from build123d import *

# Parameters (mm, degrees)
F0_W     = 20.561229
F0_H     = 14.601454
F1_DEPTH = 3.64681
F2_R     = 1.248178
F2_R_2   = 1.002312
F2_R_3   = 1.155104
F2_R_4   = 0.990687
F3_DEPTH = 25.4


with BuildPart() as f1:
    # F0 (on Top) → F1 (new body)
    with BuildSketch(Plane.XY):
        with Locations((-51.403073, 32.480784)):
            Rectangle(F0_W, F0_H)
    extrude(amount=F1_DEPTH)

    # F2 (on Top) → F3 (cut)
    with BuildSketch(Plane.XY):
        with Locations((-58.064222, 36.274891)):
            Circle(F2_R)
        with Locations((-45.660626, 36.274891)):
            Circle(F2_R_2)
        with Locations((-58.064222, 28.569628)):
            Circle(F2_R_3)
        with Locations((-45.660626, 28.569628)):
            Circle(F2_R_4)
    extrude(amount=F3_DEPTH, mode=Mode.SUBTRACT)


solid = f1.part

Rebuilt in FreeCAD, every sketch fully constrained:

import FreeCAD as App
import Part
import Sketcher
from FreeCAD import Vector
Q = App.Units.Quantity


def add_polygon(sketch, points):
    """Adds a closed chain of lines whose ends are joined by coincident constraints."""
    first, n = sketch.GeometryCount, len(points)
    for a, b in zip(points, points[1:] + points[:1]):
        sketch.addGeometry(Part.LineSegment(App.Vector(*a, 0), App.Vector(*b, 0)), False)
    for i in range(n):
        sketch.addConstraint(Sketcher.Constraint("Coincident", first + i, 2, first + (i + 1) % n, 1))

doc = App.newDocument("Part")
body = doc.addObject("PartDesign::Body", "Body")

# Sketch on XY plane
sketch1 = body.newObject("Sketcher::SketchObject", "Sketch")
sketch1.AttachmentSupport = (doc.getObject("XY_Plane"), [""])
sketch1.MapMode = "FlatFace"
add_polygon(sketch1, [(-62, 40), (-62, 25), (-41, 25), (-41, 40)])  # lines 0-3
sketch1.addConstraint([
    Sketcher.Constraint("Vertical", 0),
    Sketcher.Constraint("Horizontal", 1),
    Sketcher.Constraint("Vertical", 2),
    Sketcher.Constraint("Horizontal", 3),
    Sketcher.Constraint("DistanceX", 1, 1, 1, 2, Q("20.561229 mm")),
    Sketcher.Constraint("DistanceY", 0, 2, 0, 1, Q("14.601454 mm")),
    Sketcher.Constraint("DistanceX", 1, 2, -1, 1, Q("41.122459 mm")),
    Sketcher.Constraint("DistanceY", -1, 1, 2, 2, Q("39.781511 mm")),
])
pad1 = body.newObject("PartDesign::Pad", "Pad")
pad1.Profile = sketch1
pad1.Length = 3.64681

# Sketch on XY plane
sketch2 = body.newObject("Sketcher::SketchObject", "Sketch001")
sketch2.AttachmentSupport = (doc.getObject("XY_Plane"), [""])
sketch2.MapMode = "FlatFace"
sketch2.addGeometry([
    Part.Circle(Vector(-58.1, 36.3, 0), Vector(0, 0, 1), 1.2),
    Part.Circle(Vector(-45.7, 36.3, 0), Vector(0, 0, 1), 1),
    Part.Circle(Vector(-58.1, 28.6, 0), Vector(0, 0, 1), 1.2),
    Part.Circle(Vector(-45.7, 28.6, 0), Vector(0, 0, 1), 1),
], False)
sketch2.addConstraint([
    Sketcher.Constraint("Horizontal", 0, 3, 1, 3),
    Sketcher.Constraint("Horizontal", 2, 3, 3, 3),
    Sketcher.Constraint("Vertical", 0, 3, 2, 3),
    Sketcher.Constraint("Vertical", 1, 3, 3, 3),
    Sketcher.Constraint("Diameter", 0, Q("2.496356 mm")),
    Sketcher.Constraint("Diameter", 1, Q("2.004624 mm")),
    Sketcher.Constraint("Diameter", 2, Q("2.310208 mm")),
    Sketcher.Constraint("Diameter", 3, Q("1.981374 mm")),
    Sketcher.Constraint("DistanceY", -1, 1, 0, 3, Q("36.274891 mm")),
    Sketcher.Constraint("DistanceY", -1, 1, 2, 3, Q("28.569628 mm")),
    Sketcher.Constraint("DistanceX", 0, 3, -1, 1, Q("58.064222 mm")),
    Sketcher.Constraint("DistanceX", 1, 3, -1, 1, Q("45.660626 mm")),
])
pocket1 = body.newObject("PartDesign::Pocket", "Pocket")
pocket1.Profile = sketch2
pocket1.Length = Q("1 in")
pocket1.Reversed = True

doc.recompute()
